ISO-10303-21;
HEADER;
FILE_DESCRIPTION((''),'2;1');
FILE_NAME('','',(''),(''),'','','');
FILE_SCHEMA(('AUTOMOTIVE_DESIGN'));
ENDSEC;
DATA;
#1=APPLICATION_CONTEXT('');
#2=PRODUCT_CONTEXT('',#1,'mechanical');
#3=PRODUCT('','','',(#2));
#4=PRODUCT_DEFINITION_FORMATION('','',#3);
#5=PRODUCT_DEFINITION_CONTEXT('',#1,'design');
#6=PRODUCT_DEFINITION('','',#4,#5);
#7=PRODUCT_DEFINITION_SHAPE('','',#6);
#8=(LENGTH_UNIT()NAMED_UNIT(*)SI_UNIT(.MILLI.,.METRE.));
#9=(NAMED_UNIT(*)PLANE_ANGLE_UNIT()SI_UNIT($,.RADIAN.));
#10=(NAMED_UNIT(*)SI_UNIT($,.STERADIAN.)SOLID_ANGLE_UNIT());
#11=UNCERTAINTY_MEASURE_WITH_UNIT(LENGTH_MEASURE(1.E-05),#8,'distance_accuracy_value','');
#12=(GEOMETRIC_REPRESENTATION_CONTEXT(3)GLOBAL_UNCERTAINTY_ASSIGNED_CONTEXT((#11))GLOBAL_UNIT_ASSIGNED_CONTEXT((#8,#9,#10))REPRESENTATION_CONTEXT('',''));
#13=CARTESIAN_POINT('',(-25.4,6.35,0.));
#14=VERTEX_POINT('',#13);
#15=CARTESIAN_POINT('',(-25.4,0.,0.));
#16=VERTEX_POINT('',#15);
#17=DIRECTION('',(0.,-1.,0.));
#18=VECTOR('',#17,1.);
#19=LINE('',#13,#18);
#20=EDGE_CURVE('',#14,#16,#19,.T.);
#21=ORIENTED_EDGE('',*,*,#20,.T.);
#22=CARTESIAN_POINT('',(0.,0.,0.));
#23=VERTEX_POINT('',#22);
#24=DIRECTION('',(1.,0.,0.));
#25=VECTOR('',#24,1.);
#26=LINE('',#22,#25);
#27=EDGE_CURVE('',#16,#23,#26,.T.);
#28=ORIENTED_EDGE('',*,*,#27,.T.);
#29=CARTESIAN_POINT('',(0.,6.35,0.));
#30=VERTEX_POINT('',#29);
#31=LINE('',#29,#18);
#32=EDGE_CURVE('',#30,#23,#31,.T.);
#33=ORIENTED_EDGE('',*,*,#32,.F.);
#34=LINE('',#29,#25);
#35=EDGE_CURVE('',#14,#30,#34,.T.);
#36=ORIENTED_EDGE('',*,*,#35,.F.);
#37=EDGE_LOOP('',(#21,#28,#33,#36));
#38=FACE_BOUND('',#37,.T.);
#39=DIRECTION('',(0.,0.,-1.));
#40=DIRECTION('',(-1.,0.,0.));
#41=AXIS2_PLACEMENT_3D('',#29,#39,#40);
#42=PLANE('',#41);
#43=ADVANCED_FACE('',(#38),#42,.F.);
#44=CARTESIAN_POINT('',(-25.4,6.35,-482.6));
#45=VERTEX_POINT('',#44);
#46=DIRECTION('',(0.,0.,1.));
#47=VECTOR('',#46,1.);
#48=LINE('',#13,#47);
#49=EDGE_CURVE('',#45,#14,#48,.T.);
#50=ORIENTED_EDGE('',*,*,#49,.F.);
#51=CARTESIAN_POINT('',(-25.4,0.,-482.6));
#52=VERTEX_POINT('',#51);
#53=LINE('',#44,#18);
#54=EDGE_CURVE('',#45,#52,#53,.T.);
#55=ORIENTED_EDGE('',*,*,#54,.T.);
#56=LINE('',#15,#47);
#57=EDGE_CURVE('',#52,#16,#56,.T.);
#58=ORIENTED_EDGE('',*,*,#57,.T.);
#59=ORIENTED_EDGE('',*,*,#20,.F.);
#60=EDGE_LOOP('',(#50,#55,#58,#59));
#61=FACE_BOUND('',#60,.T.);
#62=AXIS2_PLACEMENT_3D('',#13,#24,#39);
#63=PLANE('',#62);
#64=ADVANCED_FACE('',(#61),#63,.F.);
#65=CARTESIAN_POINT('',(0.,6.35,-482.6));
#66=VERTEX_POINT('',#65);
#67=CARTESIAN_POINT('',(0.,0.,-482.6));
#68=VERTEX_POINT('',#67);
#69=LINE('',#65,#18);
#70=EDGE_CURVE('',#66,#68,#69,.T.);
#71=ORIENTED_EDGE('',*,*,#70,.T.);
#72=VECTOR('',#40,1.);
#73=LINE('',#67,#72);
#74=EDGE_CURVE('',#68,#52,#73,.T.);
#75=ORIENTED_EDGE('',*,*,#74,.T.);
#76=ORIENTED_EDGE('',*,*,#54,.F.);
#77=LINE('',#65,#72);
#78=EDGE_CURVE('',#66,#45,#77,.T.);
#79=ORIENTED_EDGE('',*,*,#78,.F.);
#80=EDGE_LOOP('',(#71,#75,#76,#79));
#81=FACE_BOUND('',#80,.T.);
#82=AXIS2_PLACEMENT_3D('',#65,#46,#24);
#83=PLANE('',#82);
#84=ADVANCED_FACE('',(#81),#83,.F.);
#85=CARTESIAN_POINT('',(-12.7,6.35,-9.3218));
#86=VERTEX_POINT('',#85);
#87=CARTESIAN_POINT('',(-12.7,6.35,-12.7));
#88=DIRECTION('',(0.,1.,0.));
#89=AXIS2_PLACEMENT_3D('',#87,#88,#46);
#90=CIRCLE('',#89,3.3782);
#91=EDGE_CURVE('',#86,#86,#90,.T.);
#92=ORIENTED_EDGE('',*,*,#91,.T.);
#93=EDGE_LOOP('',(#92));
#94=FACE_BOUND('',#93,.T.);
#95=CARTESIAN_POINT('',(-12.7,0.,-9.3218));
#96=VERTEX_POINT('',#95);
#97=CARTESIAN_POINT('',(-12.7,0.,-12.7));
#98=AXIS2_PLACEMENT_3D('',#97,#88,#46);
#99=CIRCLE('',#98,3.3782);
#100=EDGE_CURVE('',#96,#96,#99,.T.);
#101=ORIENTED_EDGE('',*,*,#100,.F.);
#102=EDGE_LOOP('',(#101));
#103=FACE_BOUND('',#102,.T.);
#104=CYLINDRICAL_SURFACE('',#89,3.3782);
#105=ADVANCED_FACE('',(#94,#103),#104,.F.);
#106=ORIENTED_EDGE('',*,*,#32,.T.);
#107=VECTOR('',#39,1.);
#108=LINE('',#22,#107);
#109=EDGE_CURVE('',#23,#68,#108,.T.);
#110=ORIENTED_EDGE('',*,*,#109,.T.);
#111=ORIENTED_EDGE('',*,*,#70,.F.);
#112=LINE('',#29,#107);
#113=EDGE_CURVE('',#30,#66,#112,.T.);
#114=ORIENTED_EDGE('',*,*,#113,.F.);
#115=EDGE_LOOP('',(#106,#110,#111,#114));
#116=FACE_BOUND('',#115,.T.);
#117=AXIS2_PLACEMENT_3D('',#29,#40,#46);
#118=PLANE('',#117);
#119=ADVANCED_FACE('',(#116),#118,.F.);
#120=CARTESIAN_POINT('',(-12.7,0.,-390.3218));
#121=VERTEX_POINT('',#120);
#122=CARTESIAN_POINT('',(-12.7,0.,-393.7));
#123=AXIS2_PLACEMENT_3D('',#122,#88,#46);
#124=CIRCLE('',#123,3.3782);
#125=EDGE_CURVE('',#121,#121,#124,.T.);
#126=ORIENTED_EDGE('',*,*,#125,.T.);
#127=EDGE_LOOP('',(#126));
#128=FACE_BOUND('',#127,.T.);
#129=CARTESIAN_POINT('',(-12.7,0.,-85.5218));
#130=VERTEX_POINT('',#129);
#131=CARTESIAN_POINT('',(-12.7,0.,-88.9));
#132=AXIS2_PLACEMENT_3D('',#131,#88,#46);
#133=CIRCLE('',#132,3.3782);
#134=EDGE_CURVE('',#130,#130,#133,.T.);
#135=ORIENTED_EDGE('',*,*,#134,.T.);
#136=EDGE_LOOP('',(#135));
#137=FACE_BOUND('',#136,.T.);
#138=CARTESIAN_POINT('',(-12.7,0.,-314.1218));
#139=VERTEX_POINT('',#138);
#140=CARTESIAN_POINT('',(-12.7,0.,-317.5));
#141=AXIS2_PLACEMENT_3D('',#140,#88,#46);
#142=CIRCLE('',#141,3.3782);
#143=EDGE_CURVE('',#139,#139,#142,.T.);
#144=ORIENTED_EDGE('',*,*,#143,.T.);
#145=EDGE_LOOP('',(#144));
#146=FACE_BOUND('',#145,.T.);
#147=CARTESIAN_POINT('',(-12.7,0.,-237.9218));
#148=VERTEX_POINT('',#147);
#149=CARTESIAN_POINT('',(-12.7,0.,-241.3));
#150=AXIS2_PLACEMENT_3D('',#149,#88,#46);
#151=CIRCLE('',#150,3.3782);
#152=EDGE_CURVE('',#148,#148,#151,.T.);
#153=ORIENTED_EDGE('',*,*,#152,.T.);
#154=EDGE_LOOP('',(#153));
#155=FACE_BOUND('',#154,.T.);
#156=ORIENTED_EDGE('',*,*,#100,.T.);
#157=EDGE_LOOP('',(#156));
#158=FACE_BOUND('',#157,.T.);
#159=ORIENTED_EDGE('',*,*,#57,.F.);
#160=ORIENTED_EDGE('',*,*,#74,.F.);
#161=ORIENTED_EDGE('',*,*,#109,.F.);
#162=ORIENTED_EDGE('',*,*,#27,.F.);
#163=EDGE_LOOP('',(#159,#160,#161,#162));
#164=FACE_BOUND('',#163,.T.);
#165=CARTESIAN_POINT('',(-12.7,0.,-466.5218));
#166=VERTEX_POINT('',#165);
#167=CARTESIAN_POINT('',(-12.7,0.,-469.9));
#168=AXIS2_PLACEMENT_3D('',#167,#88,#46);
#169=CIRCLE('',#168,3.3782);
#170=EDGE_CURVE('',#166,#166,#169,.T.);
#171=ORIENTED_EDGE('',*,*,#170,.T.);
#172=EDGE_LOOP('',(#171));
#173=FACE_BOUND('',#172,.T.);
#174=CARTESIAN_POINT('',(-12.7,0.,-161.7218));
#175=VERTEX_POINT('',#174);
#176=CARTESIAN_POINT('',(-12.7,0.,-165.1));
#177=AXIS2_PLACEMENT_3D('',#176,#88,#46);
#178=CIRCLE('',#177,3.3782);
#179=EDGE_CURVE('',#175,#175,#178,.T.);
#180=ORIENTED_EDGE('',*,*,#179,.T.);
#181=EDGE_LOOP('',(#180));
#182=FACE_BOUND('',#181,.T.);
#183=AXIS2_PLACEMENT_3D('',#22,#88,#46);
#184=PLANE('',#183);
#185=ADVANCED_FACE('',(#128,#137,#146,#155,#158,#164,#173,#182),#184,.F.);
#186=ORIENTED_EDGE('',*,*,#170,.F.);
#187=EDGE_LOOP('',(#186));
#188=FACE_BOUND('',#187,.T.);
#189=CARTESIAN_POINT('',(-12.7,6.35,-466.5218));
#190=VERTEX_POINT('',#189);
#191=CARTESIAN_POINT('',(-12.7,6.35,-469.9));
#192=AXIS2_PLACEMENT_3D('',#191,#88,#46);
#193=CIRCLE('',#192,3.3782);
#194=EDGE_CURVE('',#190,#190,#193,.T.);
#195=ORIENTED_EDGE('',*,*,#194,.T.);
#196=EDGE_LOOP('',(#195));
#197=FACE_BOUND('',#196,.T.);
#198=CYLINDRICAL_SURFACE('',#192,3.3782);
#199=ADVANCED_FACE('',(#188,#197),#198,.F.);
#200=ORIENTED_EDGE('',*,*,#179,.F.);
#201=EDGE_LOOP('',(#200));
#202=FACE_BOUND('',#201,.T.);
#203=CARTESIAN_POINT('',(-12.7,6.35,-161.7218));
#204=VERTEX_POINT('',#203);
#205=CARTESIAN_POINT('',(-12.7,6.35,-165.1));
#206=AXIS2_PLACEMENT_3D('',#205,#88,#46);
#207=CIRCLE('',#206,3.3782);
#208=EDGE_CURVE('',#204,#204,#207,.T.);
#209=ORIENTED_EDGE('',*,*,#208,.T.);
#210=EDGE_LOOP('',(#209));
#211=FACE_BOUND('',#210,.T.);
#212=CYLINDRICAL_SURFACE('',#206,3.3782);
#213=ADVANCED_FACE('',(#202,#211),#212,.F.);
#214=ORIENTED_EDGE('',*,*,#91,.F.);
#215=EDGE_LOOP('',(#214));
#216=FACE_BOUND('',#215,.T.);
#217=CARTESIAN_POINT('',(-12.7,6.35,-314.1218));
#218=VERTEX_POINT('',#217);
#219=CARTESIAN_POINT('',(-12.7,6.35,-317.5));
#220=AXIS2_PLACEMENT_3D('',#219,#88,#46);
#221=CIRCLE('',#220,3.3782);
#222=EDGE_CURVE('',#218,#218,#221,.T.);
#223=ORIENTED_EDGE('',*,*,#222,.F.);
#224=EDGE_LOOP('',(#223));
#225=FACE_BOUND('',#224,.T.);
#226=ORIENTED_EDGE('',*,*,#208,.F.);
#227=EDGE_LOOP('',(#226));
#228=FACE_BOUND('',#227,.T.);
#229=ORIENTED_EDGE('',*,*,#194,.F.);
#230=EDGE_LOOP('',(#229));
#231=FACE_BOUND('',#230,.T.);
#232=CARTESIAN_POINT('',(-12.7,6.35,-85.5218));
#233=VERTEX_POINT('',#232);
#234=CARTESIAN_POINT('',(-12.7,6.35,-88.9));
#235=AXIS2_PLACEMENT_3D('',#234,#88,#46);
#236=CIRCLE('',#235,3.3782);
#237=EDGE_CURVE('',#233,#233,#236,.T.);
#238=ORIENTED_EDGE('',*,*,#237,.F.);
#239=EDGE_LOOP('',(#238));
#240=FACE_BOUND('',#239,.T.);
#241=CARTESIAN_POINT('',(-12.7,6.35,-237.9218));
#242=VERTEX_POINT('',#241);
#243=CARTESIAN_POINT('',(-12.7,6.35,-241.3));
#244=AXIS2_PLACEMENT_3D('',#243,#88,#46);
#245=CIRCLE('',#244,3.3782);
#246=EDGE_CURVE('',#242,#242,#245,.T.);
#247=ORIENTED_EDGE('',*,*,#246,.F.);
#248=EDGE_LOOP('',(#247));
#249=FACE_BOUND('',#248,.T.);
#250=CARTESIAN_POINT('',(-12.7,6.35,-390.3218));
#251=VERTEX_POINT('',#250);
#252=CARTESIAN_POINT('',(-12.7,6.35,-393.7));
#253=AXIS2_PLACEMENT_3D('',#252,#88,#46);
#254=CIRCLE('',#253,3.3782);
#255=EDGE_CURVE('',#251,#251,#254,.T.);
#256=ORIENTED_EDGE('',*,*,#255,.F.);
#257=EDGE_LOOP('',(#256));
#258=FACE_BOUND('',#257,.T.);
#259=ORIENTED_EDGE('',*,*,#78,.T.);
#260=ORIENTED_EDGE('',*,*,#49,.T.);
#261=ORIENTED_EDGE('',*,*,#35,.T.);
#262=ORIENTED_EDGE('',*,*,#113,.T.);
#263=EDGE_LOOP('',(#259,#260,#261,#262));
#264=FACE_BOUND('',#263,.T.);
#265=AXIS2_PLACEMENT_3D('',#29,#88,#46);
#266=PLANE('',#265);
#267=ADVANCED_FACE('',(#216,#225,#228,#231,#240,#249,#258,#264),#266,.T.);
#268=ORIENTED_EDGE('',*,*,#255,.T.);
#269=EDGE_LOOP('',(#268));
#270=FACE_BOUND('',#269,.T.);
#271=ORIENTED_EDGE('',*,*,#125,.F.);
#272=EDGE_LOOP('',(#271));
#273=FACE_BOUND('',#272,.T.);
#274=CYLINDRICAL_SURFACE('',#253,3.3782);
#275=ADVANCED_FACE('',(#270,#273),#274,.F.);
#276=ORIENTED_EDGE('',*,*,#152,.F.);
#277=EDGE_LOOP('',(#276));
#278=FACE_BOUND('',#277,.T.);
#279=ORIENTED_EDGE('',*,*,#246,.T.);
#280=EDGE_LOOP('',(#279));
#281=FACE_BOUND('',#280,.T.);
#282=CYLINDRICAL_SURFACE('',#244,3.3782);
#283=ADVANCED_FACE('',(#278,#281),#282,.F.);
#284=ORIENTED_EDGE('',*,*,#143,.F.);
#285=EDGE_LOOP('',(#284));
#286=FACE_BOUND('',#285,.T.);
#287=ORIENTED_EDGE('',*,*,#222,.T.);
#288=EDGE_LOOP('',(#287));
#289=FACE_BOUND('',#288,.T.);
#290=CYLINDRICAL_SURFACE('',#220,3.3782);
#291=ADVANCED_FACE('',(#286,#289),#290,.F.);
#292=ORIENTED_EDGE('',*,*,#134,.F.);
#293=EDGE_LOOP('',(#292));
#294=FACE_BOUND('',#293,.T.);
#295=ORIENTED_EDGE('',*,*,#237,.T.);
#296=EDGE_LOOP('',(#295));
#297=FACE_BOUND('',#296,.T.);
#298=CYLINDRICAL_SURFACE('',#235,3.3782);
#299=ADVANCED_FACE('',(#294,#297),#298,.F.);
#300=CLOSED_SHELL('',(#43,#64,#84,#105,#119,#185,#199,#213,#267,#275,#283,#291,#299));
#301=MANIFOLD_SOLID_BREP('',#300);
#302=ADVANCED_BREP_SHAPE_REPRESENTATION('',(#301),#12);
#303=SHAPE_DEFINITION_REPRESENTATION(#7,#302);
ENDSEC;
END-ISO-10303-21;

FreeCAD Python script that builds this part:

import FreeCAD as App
import Part
import Sketcher

V = App.Vector
Q = App.Units.Quantity


def add_polygon(sketch, points):
    """Adds a closed chain of lines whose ends are joined by coincident constraints."""
    first, n = sketch.GeometryCount, len(points)
    for a, b in zip(points, points[1:] + points[:1]):
        sketch.addGeometry(Part.LineSegment(App.Vector(*a, 0), App.Vector(*b, 0)), False)
    for i in range(n):
        sketch.addConstraint(Sketcher.Constraint("Coincident", first + i, 2, first + (i + 1) % n, 1))

doc = App.newDocument("Part")
params = doc.addObject("Spreadsheet::Sheet", "Params")
for row, (alias, value) in enumerate([
    ("sketch1_width", "1 in"),
    ("sketch1_height", "19 in"),
    ("pad1_length", "0.25 in"),
    ("sketch2_diameter", "0.266 in"),
    ("hole_diameter", "0.266 in"),
], start=1):
    params.set(f"A{row}", alias)
    params.set(f"B{row}", "=" + value)
    params.setAlias(f"B{row}", alias)

body = doc.addObject("PartDesign::Body", "Body")

sketch1 = body.newObject("Sketcher::SketchObject", "Sketch")
sketch1.AttachmentSupport = (doc.getObject("XZ_Plane"), [""])
sketch1.MapMode = "FlatFace"
add_polygon(sketch1, [(-25, -483), (-25, 0), (0, 0), (0, -483)])
sketch1.addConstraint([
    Sketcher.Constraint("Vertical", 0),
    Sketcher.Constraint("Horizontal", 1),
    Sketcher.Constraint("Vertical", 2),
    Sketcher.Constraint("Horizontal", 3),
    Sketcher.Constraint("Coincident", 1, 2, -1, 1),
    Sketcher.Constraint("DistanceX", 1, 1, 1, 2, Q("1 in")),
    Sketcher.Constraint("DistanceY", 0, 1, 0, 2, Q("19 in")),
])
sketch1.setExpression("Constraints[9]", "Params.sketch1_width")
sketch1.setExpression("Constraints[10]", "Params.sketch1_height")
pad1 = body.newObject("PartDesign::Pad", "Pad")
pad1.Profile = sketch1
pad1.setExpression("Length", "Params.pad1_length")
pad1.Reversed = True

sketch2 = body.newObject("Sketcher::SketchObject", "Sketch001")
sketch2.AttachmentSupport = (doc.getObject("XZ_Plane"), [""])
sketch2.MapMode = "FlatFace"
sketch2.AttachmentOffset = App.Placement(V(0, 0, -0.25 * 25.4), App.Rotation())
sketch2.addGeometry([
    Part.Circle(V(-12.7, -12.7, 0), V(0, 0, 1), 3.4),
    Part.Circle(V(-12.7, -88.9, 0), V(0, 0, 1), 3.4),
    Part.Circle(V(-12.7, -165.1, 0), V(0, 0, 1), 3.4),
    Part.Circle(V(-12.7, -241.3, 0), V(0, 0, 1), 3.4),
    Part.Circle(V(-12.7, -317.5, 0), V(0, 0, 1), 3.4),
    Part.Circle(V(-12.7, -393.7, 0), V(0, 0, 1), 3.4),
    Part.Circle(V(-12.7, -469.9, 0), V(0, 0, 1), 3.4),
], False)
sketch2.addConstraint([
    Sketcher.Constraint("Equal", 0, 1),
    Sketcher.Constraint("Equal", 1, 2),
    Sketcher.Constraint("Equal", 2, 3),
    Sketcher.Constraint("Equal", 3, 4),
    Sketcher.Constraint("Equal", 4, 5),
    Sketcher.Constraint("Equal", 5, 6),
    Sketcher.Constraint("Vertical", 0, 3, 1, 3),
    Sketcher.Constraint("Vertical", 1, 3, 2, 3),
    Sketcher.Constraint("Vertical", 2, 3, 3, 3),
    Sketcher.Constraint("Vertical", 3, 3, 4, 3),
    Sketcher.Constraint("Vertical", 4, 3, 5, 3),
    Sketcher.Constraint("Vertical", 5, 3, 6, 3),
    Sketcher.Constraint("Diameter", 0, Q("0.266 in")),
    Sketcher.Constraint("DistanceY", 1, 3, 0, 3, Q("3 in")),
    Sketcher.Constraint("DistanceY", 2, 3, 1, 3, Q("3 in")),
    Sketcher.Constraint("DistanceY", 3, 3, 2, 3, Q("3 in")),
    Sketcher.Constraint("DistanceY", 4, 3, 3, 3, Q("3 in")),
    Sketcher.Constraint("DistanceY", 5, 3, 4, 3, Q("3 in")),
    Sketcher.Constraint("DistanceY", 6, 3, 5, 3, Q("3 in")),
    Sketcher.Constraint("DistanceX", 0, 3, -1, 1, Q("0.5 in")),
    Sketcher.Constraint("DistanceY", 0, 3, -1, 1, Q("0.5 in")),
])
sketch2.setExpression("Constraints[12]", "Params.sketch2_diameter")
doc.recompute()
hole = body.newObject("PartDesign::Hole", "Hole")
hole.Profile = sketch2
hole.ThreadType = "None"
hole.setExpression("Diameter", "Params.hole_diameter")
hole.DepthType = "ThroughAll"
hole.Reversed = True

doc.recompute()
